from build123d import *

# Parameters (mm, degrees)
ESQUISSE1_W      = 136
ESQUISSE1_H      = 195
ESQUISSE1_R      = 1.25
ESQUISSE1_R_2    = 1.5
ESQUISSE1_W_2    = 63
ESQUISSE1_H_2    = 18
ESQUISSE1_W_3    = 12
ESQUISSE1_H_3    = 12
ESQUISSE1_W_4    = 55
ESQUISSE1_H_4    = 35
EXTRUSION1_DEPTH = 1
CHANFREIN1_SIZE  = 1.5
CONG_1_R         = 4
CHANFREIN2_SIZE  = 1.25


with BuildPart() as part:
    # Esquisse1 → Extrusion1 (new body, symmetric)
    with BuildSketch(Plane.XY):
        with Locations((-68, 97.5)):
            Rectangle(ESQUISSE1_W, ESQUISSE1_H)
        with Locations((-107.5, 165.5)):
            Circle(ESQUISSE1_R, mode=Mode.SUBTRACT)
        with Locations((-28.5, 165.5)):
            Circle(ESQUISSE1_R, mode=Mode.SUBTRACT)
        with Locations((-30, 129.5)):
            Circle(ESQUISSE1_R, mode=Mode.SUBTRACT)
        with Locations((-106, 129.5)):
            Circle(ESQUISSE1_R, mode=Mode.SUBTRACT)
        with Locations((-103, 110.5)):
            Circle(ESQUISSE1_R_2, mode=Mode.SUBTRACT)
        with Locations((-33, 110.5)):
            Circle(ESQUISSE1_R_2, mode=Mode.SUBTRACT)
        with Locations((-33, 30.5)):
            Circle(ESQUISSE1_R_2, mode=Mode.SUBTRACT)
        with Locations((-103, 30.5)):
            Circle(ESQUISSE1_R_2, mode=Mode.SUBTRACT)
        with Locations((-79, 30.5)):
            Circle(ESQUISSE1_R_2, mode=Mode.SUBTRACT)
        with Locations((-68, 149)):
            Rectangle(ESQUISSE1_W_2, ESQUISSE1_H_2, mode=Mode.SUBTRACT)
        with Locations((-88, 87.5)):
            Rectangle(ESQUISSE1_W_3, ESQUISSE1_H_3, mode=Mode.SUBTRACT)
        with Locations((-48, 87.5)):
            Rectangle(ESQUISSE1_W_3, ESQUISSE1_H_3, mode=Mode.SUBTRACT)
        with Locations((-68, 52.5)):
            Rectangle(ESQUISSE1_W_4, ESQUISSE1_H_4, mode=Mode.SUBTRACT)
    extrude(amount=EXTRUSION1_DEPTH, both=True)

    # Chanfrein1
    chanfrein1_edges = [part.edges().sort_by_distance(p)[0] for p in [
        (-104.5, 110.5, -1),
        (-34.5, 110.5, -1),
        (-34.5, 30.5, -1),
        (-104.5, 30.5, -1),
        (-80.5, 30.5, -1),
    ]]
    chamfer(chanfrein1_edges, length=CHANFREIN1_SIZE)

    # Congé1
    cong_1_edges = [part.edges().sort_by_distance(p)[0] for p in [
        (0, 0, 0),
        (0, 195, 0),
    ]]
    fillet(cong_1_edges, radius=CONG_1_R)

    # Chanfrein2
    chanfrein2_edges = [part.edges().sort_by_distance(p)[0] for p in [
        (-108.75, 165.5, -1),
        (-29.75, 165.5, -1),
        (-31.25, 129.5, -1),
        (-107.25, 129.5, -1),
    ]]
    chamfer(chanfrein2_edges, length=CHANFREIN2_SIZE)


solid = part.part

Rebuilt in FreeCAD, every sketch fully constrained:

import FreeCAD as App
import Part
import Sketcher

V = App.Vector


def edges_at(feature, points):
    """Names of the edges that pass closest to the given points."""
    edges = feature.Shape.Edges
    near = lambda p: min(range(len(edges)), key=lambda i: edges[i].distToShape(Part.Vertex(*p))[0])
    return sorted({f"Edge{near(p) + 1}" for p in points})

doc = App.newDocument("Part")
body = doc.addObject("PartDesign::Body", "Body")

# Sketch on XY plane
sketch1 = body.newObject("Sketcher::SketchObject", "Sketch")
sketch1.AttachmentSupport = (doc.getObject("XY_Plane"), [""])
sketch1.MapMode = "FlatFace"
sketch1.addGeometry([
    Part.LineSegment(V(-136, 195, 0), V(-136, 0, 0)),  # 0
    Part.LineSegment(V(-136, 0, 0), V(0, 0, 0)),  # 1
    Part.LineSegment(V(0, 0, 0), V(0, 195, 0)),  # 2
    Part.LineSegment(V(0, 195, 0), V(-136, 195, 0)),  # 3
    Part.Circle(V(-103, 30.5, 0), V(0, 0, 1), 1.5),  # 4
    Part.Circle(V(-79, 30.5, 0), V(0, 0, 1), 1.5),  # 5
    Part.LineSegment(V(-82, 81.5, 0), V(-94, 81.5, 0)),  # 6
    Part.LineSegment(V(-94, 81.5, 0), V(-94, 93.5, 0)),  # 7
    Part.LineSegment(V(-94, 93.5, 0), V(-82, 93.5, 0)),  # 8
    Part.LineSegment(V(-82, 93.5, 0), V(-82, 81.5, 0)),  # 9
    Part.LineSegment(V(-40.5, 35, 0), V(-95.5, 35, 0)),  # 10
    Part.LineSegment(V(-95.5, 35, 0), V(-95.5, 70, 0)),  # 11
    Part.LineSegment(V(-95.5, 70, 0), V(-40.5, 70, 0)),  # 12
    Part.LineSegment(V(-40.5, 70, 0), V(-40.5, 35, 0)),  # 13
    Part.Circle(V(-33, 30.5, 0), V(0, 0, 1), 1.5),  # 14
    Part.LineSegment(V(-42, 81.5, 0), V(-54, 81.5, 0)),  # 15
    Part.LineSegment(V(-54, 81.5, 0), V(-54, 93.5, 0)),  # 16
    Part.LineSegment(V(-54, 93.5, 0), V(-42, 93.5, 0)),  # 17
    Part.LineSegment(V(-42, 93.5, 0), V(-42, 81.5, 0)),  # 18
    Part.Circle(V(-103, 110.5, 0), V(0, 0, 1), 1.5),  # 19
    Part.Circle(V(-106, 129.5, 0), V(0, 0, 1), 1.2),  # 20
    Part.Circle(V(-107.5, 165.5, 0), V(0, 0, 1), 1.2),  # 21
    Part.Circle(V(-33, 110.5, 0), V(0, 0, 1), 1.5),  # 22
    Part.Circle(V(-30, 129.5, 0), V(0, 0, 1), 1.2),  # 23
    Part.LineSegment(V(-36.5, 140, 0), V(-99.5, 140, 0)),  # 24
    Part.LineSegment(V(-99.5, 140, 0), V(-99.5, 158, 0)),  # 25
    Part.LineSegment(V(-99.5, 158, 0), V(-36.5, 158, 0)),  # 26
    Part.LineSegment(V(-36.5, 158, 0), V(-36.5, 140, 0)),  # 27
    Part.Circle(V(-28.5, 165.5, 0), V(0, 0, 1), 1.2),  # 28
], False)
sketch1.addConstraint([
    Sketcher.Constraint("Coincident", 0, 2, 1, 1),
    Sketcher.Constraint("Coincident", 1, 2, 2, 1),
    Sketcher.Constraint("Coincident", 2, 2, 3, 1),
    Sketcher.Constraint("Coincident", 3, 2, 0, 1),
    Sketcher.Constraint("Coincident", 6, 2, 7, 1),
    Sketcher.Constraint("Coincident", 7, 2, 8, 1),
    Sketcher.Constraint("Coincident", 8, 2, 9, 1),
    Sketcher.Constraint("Coincident", 9, 2, 6, 1),
    Sketcher.Constraint("Coincident", 10, 2, 11, 1),
    Sketcher.Constraint("Coincident", 11, 2, 12, 1),
    Sketcher.Constraint("Coincident", 12, 2, 13, 1),
    Sketcher.Constraint("Coincident", 13, 2, 10, 1),
    Sketcher.Constraint("Coincident", 15, 2, 16, 1),
    Sketcher.Constraint("Coincident", 16, 2, 17, 1),
    Sketcher.Constraint("Coincident", 17, 2, 18, 1),
    Sketcher.Constraint("Coincident", 18, 2, 15, 1),
    Sketcher.Constraint("Coincident", 24, 2, 25, 1),
    Sketcher.Constraint("Coincident", 25, 2, 26, 1),
    Sketcher.Constraint("Coincident", 26, 2, 27, 1),
    Sketcher.Constraint("Coincident", 27, 2, 24, 1),
    Sketcher.Constraint("Vertical", 0),
    Sketcher.Constraint("Horizontal", 1),
    Sketcher.Constraint("Vertical", 2),
    Sketcher.Constraint("Horizontal", 3),
    Sketcher.Constraint("Horizontal", 6),
    Sketcher.Constraint("Vertical", 7),
    Sketcher.Constraint("Horizontal", 8),
    Sketcher.Constraint("Vertical", 9),
    Sketcher.Constraint("Horizontal", 10),
    Sketcher.Constraint("Vertical", 11),
    Sketcher.Constraint("Horizontal", 12),
    Sketcher.Constraint("Vertical", 13),
    Sketcher.Constraint("Horizontal", 15),
    Sketcher.Constraint("Vertical", 16),
    Sketcher.Constraint("Horizontal", 17),
    Sketcher.Constraint("Vertical", 18),
    Sketcher.Constraint("Horizontal", 24),
    Sketcher.Constraint("Vertical", 25),
    Sketcher.Constraint("Horizontal", 26),
    Sketcher.Constraint("Vertical", 27),
    Sketcher.Constraint("Coincident", 1, 2, -1, 1),
    Sketcher.Constraint("Equal", 4, 5),
    Sketcher.Constraint("Equal", 5, 14),
    Sketcher.Constraint("Equal", 14, 19),
    Sketcher.Constraint("Equal", 20, 21),
    Sketcher.Constraint("Equal", 19, 22),
    Sketcher.Constraint("Equal", 21, 23),
    Sketcher.Constraint("Equal", 23, 28),
    Sketcher.Constraint("Horizontal", 4, 3, 5, 3),
    Sketcher.Constraint("Horizontal", 5, 3, 14, 3),
    Sketcher.Constraint("Horizontal", 19, 3, 22, 3),
    Sketcher.Constraint("Horizontal", 20, 3, 23, 3),
    Sketcher.Constraint("Horizontal", 21, 3, 28, 3),
    Sketcher.Constraint("Horizontal", 9, 2, 15, 2),
    Sketcher.Constraint("Horizontal", 8, 2, 16, 2),
    Sketcher.Constraint("Vertical", 4, 3, 19, 3),
    Sketcher.Constraint("Vertical", 14, 3, 22, 3),
    Sketcher.Constraint("Equal", 8, 15),
    Sketcher.Constraint("Equal", 17, 7),
    Sketcher.Constraint("Diameter", 4, 3.0),
    Sketcher.Constraint("Diameter", 20, 2.5),
    Sketcher.Constraint("DistanceX", 1, 1, 1, 2, 136.0),
    Sketcher.Constraint("DistanceX", 6, 2, 6, 1, 12.0),
    Sketcher.Constraint("DistanceX", 10, 2, 10, 1, 55.0),
    Sketcher.Constraint("DistanceX", 24, 2, 24, 1, 63.0),
    Sketcher.Constraint("DistanceY", 0, 2, 0, 1, 195.0),
    Sketcher.Constraint("DistanceY", 11, 1, 11, 2, 35.0),
    Sketcher.Constraint("DistanceY", 25, 1, 25, 2, 18.0),
    Sketcher.Constraint("DistanceX", 4, 3, -1, 1, 103.0),
    Sketcher.Constraint("DistanceX", 5, 3, -1, 1, 79.0),
    Sketcher.Constraint("DistanceX", 14, 3, -1, 1, 33.0),
    Sketcher.Constraint("DistanceX", 20, 3, -1, 1, 106.0),
    Sketcher.Constraint("DistanceX", 23, 3, -1, 1, 30.0),
    Sketcher.Constraint("DistanceX", 6, 2, -1, 1, 94.0),
    Sketcher.Constraint("DistanceY", -1, 1, 10, 2, 35.0),
    Sketcher.Constraint("DistanceX", 15, 2, -1, 1, 54.0),
    Sketcher.Constraint("DistanceY", -1, 1, 24, 2, 140.0),
    Sketcher.Constraint("DistanceY", 4, 3, 19, 3, 80.0),
    Sketcher.Constraint("DistanceY", 19, 3, 20, 3, 19.0),
    Sketcher.Constraint("DistanceY", 20, 3, 21, 3, 36.0),
    Sketcher.Constraint("DistanceX", 21, 3, 28, 3, 79.0),
    Sketcher.Constraint("DistanceY", 6, 2, 19, 3, 29.0),
    Sketcher.Constraint("DistanceX", 21, 3, 24, 2, 8.0),
    Sketcher.Constraint("DistanceY", -1, 1, 4, 3, 30.5),
    Sketcher.Constraint("DistanceX", 21, 3, -1, 1, 107.5),
    Sketcher.Constraint("DistanceX", 10, 2, -1, 1, 95.5),
])
pad1 = body.newObject("PartDesign::Pad", "Pad")
pad1.Profile = sketch1
pad1.Length = 2
pad1.Midplane = True
doc.recompute()

chamfer = body.newObject("PartDesign::Chamfer", "Chamfer")
chamfer.Base = (pad1, edges_at(pad1, [
    (-104.5, 110.5, -1),
    (-34.5, 110.5, -1),
    (-34.5, 30.5, -1),
    (-104.5, 30.5, -1),
    (-80.5, 30.5, -1),
]))
chamfer.Size = 1.5
doc.recompute()

fillet = body.newObject("PartDesign::Fillet", "Fillet")
fillet.Base = (chamfer, edges_at(chamfer, [(0, 0, 0), (0, 195, 0)]))
fillet.Radius = 4
doc.recompute()

chamfer2 = body.newObject("PartDesign::Chamfer", "Chamfer001")
chamfer2.Base = (fillet, edges_at(fillet, [
    (-108.75, 165.5, -1),
    (-29.75, 165.5, -1),
    (-31.25, 129.5, -1),
    (-107.25, 129.5, -1),
]))
chamfer2.Size = 1.25

doc.recompute()
